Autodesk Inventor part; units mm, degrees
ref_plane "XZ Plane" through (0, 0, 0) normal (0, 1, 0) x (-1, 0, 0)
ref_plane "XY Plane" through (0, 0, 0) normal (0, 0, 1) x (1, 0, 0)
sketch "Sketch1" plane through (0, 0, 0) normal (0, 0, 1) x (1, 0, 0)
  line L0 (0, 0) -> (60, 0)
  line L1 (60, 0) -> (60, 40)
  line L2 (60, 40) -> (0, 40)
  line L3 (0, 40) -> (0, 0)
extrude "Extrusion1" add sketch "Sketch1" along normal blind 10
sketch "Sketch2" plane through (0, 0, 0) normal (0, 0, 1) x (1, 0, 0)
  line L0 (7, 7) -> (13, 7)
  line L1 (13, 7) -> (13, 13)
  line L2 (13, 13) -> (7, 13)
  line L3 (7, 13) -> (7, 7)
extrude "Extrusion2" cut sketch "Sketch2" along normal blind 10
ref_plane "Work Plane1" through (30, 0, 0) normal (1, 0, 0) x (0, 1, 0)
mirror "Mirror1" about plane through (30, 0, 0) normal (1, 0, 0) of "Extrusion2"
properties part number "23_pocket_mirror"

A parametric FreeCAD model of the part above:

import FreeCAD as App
import Part
import Sketcher

V = App.Vector

doc = App.newDocument("Part")
body = doc.addObject("PartDesign::Body", "Body")

sketch1 = doc.addObject("Sketcher::SketchObject", "Sketch")
body.addObject(sketch1)
sketch1.AttachmentSupport = (doc.XY_Plane, [""])
sketch1.MapMode = "FlatFace"
sketch1.addGeometry([
    Part.LineSegment(V(0, 40, 0), V(0, 0, 0)),
    Part.LineSegment(V(0, 0, 0), V(60, 0, 0)),
    Part.LineSegment(V(60, 0, 0), V(60, 40, 0)),
    Part.LineSegment(V(60, 40, 0), V(0, 40, 0)),
], False)
sketch1.addConstraint([
    Sketcher.Constraint("Coincident", 0, 2, 1, 1),
    Sketcher.Constraint("Coincident", 1, 2, 2, 1),
    Sketcher.Constraint("Coincident", 2, 2, 3, 1),
    Sketcher.Constraint("Coincident", 3, 2, 0, 1),
    Sketcher.Constraint("Vertical", 0),
    Sketcher.Constraint("Horizontal", 1),
    Sketcher.Constraint("Vertical", 2),
    Sketcher.Constraint("Horizontal", 3),
    Sketcher.Constraint("Coincident", 0, 2, -1, 1),
    Sketcher.Constraint("DistanceX", 1, 1, 1, 2, 60.0),
    Sketcher.Constraint("DistanceY", 0, 2, 0, 1, 40.0),
])
pad1 = doc.addObject("PartDesign::Pad", "Pad")
body.addObject(pad1)
pad1.Profile = sketch1
pad1.Length = 10

sketch2 = doc.addObject("Sketcher::SketchObject", "Sketch001")
body.addObject(sketch2)
sketch2.AttachmentSupport = (doc.XY_Plane, [""])
sketch2.MapMode = "FlatFace"
sketch2.addGeometry([
    Part.LineSegment(V(7, 13, 0), V(7, 7, 0)),
    Part.LineSegment(V(7, 7, 0), V(13, 7, 0)),
    Part.LineSegment(V(13, 7, 0), V(13, 13, 0)),
    Part.LineSegment(V(13, 13, 0), V(7, 13, 0)),
], False)
sketch2.addConstraint([
    Sketcher.Constraint("Coincident", 0, 2, 1, 1),
    Sketcher.Constraint("Coincident", 1, 2, 2, 1),
    Sketcher.Constraint("Coincident", 2, 2, 3, 1),
    Sketcher.Constraint("Coincident", 3, 2, 0, 1),
    Sketcher.Constraint("Vertical", 0),
    Sketcher.Constraint("Horizontal", 1),
    Sketcher.Constraint("Vertical", 2),
    Sketcher.Constraint("Horizontal", 3),
    Sketcher.Constraint("Equal", 3, 0),
    Sketcher.Constraint("DistanceX", 1, 1, 1, 2, 6.0),
    Sketcher.Constraint("DistanceX", -1, 1, 0, 2, 7.0),
    Sketcher.Constraint("DistanceY", -1, 1, 0, 2, 7.0),
])
pocket1 = doc.addObject("PartDesign::Pocket", "Pocket")
body.addObject(pocket1)
pocket1.Profile = sketch2
pocket1.Length = 10
pocket1.Reversed = True
doc.recompute()

datumplane = doc.addObject("PartDesign::Plane", "DatumPlane")
body.addObject(datumplane)
datumplane.AttachmentSupport = (doc.YZ_Plane, [""])
datumplane.MapMode = "FlatFace"
datumplane.AttachmentOffset = App.Placement(V(0, 0, 30), App.Rotation())
mirrored = doc.addObject("PartDesign::Mirrored", "Mirrored")
body.addObject(mirrored)
mirrored.Originals = [pocket1]
mirrored.MirrorPlane = (datumplane, [""])
body.Tip = mirrored

doc.recompute()
